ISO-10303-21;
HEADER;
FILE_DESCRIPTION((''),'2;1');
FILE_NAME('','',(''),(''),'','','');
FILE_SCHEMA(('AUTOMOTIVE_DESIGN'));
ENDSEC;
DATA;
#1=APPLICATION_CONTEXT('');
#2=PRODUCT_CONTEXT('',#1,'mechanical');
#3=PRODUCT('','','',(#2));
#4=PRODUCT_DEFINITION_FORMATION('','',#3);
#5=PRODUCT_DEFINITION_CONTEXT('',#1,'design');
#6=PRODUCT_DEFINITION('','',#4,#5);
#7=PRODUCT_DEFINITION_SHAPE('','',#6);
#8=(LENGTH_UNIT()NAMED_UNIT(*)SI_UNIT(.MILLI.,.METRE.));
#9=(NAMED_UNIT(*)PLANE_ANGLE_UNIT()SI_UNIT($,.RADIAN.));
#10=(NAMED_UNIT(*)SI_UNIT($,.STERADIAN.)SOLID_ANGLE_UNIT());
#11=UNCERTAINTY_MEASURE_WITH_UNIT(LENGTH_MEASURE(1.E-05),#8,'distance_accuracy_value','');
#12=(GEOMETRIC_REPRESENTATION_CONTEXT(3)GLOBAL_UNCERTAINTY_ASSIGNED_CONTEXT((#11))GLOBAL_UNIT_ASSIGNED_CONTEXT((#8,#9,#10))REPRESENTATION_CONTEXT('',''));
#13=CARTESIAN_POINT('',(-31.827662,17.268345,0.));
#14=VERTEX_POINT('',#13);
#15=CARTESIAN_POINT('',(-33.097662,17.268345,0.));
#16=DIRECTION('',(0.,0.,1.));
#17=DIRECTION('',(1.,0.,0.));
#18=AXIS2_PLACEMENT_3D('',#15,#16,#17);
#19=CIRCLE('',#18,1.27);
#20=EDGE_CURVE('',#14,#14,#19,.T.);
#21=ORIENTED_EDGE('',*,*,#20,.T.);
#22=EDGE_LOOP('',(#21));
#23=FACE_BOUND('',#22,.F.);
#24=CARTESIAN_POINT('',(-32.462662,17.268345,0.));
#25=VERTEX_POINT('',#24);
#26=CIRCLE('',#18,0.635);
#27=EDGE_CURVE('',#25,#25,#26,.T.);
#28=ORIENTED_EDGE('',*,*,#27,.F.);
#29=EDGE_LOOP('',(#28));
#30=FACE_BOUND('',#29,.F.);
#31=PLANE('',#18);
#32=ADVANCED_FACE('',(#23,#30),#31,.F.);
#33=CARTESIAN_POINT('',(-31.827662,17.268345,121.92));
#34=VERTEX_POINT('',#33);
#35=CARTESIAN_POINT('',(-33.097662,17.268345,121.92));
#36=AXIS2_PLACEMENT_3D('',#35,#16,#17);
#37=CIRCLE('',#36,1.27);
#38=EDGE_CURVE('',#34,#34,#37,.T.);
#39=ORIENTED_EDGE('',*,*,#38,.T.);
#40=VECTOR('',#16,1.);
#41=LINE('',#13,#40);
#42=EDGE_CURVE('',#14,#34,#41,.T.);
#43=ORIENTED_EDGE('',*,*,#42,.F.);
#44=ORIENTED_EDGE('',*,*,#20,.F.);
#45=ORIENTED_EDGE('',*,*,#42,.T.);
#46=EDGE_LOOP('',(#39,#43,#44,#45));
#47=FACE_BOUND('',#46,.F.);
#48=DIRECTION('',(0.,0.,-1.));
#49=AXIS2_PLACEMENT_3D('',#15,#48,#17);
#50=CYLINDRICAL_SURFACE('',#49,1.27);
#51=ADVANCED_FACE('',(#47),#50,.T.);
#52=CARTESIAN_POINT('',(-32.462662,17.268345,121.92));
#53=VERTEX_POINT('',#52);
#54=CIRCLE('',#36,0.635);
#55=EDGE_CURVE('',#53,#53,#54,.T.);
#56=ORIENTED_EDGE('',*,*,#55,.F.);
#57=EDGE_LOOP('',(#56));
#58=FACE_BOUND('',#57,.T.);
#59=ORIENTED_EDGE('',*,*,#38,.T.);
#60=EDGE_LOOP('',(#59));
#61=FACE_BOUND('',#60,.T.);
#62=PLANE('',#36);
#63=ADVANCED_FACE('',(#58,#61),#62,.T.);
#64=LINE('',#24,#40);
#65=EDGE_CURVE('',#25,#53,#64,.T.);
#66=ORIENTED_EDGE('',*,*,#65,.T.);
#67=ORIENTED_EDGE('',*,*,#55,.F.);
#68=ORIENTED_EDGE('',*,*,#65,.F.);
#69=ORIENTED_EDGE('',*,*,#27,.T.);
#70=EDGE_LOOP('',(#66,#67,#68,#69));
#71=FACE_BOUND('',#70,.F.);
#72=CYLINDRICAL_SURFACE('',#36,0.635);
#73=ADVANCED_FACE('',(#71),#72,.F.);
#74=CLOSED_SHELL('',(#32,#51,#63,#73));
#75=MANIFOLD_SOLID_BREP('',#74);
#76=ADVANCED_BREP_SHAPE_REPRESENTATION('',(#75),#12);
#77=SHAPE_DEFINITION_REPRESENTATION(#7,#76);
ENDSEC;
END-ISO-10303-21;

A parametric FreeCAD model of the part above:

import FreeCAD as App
import Part
import Sketcher

V = App.Vector
Q = App.Units.Quantity

doc = App.newDocument("Part")
body = doc.addObject("PartDesign::Body", "Body")

# Sketch on XY plane
sketch1 = body.newObject("Sketcher::SketchObject", "Sketch")
sketch1.AttachmentSupport = (doc.getObject("XY_Plane"), [""])
sketch1.MapMode = "FlatFace"
sketch1.addGeometry(Part.Circle(V(-33.1, 17.3, 0), V(0, 0, 1), 1.3), False)
sketch1.addConstraint(Sketcher.Constraint("Diameter", 0, Q("0.1 in")))
sketch1.addConstraint(Sketcher.Constraint("DistanceX", 0, 3, -1, 1, 33.097662))
sketch1.addConstraint(Sketcher.Constraint("DistanceY", -1, 1, 0, 3, 17.268345))
pad1 = body.newObject("PartDesign::Pad", "Pad")
pad1.Profile = sketch1
pad1.Length = Q("4.8 in")

# Sketch on XY plane
sketch2 = body.newObject("Sketcher::SketchObject", "Sketch001")
sketch2.AttachmentSupport = (doc.getObject("XY_Plane"), [""])
sketch2.MapMode = "FlatFace"
sketch2.AttachmentOffset = App.Placement(V(0, 0, 4.8 * 25.4), App.Rotation())
sketch2.addGeometry(Part.Circle(V(-33.1, 17.3, 0), V(0, 0, 1), 0.6), False)
sketch2.addConstraint(Sketcher.Constraint("Diameter", 0, Q("0.05 in")))
sketch2.addConstraint(Sketcher.Constraint("DistanceX", 0, 3, -1, 1, 33.097662))
sketch2.addConstraint(Sketcher.Constraint("DistanceY", -1, 1, 0, 3, 17.268345))
pocket1 = body.newObject("PartDesign::Pocket", "Pocket")
pocket1.Profile = sketch2
pocket1.Length = Q("4.8 in")
pocket2 = body.newObject("PartDesign::Pocket", "Pocket001")
pocket2.Profile = sketch2
pocket2.Length = Q("1 in")

doc.recompute()
